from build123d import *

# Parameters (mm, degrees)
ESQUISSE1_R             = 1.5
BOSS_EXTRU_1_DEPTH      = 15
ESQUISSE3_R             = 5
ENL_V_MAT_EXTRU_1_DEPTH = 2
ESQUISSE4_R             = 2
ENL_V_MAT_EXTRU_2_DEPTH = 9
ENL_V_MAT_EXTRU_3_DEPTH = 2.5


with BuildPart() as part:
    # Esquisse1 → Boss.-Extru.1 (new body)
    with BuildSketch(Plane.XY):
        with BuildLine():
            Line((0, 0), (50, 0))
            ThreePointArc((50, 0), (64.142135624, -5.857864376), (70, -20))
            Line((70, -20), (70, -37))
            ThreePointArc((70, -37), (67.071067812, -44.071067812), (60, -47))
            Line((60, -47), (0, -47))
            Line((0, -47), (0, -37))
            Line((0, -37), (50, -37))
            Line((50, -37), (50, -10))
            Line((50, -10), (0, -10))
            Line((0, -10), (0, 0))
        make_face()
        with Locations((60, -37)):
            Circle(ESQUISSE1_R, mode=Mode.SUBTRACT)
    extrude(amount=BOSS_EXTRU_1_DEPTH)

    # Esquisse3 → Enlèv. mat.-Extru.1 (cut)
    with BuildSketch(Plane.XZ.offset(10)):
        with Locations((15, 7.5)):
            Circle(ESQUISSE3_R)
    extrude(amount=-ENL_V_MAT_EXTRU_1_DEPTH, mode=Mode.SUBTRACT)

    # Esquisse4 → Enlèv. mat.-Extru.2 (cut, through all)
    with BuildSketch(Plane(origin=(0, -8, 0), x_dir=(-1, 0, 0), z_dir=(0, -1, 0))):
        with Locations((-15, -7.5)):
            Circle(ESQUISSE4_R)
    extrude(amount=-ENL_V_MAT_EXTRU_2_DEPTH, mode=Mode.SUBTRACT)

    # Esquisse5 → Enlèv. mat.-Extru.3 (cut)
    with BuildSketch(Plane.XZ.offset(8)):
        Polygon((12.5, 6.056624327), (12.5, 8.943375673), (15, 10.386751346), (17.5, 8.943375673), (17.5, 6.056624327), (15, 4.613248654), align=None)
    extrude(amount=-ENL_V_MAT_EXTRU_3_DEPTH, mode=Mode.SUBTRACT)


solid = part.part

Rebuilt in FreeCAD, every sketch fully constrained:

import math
import FreeCAD as App
import Part
import Sketcher
Q = App.Units.Quantity


def add_polygon(sketch, points):
    """Adds a closed chain of lines whose ends are joined by coincident constraints."""
    first, n = sketch.GeometryCount, len(points)
    for a, b in zip(points, points[1:] + points[:1]):
        sketch.addGeometry(Part.LineSegment(App.Vector(*a, 0), App.Vector(*b, 0)), False)
    for i in range(n):
        sketch.addConstraint(Sketcher.Constraint("Coincident", first + i, 2, first + (i + 1) % n, 1))

doc = App.newDocument("Part")
params = doc.addObject("Spreadsheet::Sheet", "Params")
for row, (alias, value) in enumerate([
    ("sketch1_diameter", "3 mm"),
    ("sketch1_radius", "10 mm"),
    ("sketch1_radius2", "20 mm"),
    ("sketch1_width", "50 mm"),
    ("sketch1_height", "27 mm"),
    ("pad1_length", "15 mm"),
    ("sketch2_diameter", "10 mm"),
    ("pocket1_length", "2 mm"),
    ("sketch3_diameter", "4 mm"),
    ("pocket3_length", "2.5 mm"),
], start=1):
    params.set(f"A{row}", alias)
    params.set(f"B{row}", "=" + value)
    params.setAlias(f"B{row}", alias)

body = doc.addObject("PartDesign::Body", "Body")

# Sketch on XY plane
sketch1 = body.newObject("Sketcher::SketchObject", "Sketch")
sketch1.AttachmentSupport = (doc.getObject("XY_Plane"), [""])
sketch1.MapMode = "FlatFace"
sketch1.addGeometry(Part.LineSegment(App.Vector(50, 0, 0), App.Vector(0, 0, 0)), False)
sketch1.addGeometry(Part.LineSegment(App.Vector(0, 0, 0), App.Vector(0, -10, 0)), False)
sketch1.addGeometry(Part.LineSegment(App.Vector(0, -10, 0), App.Vector(50, -10, 0)), False)
sketch1.addGeometry(Part.LineSegment(App.Vector(50, -10, 0), App.Vector(50, -37, 0)), False)
sketch1.addGeometry(Part.LineSegment(App.Vector(50, -37, 0), App.Vector(0, -37, 0)), False)
sketch1.addGeometry(Part.LineSegment(App.Vector(0, -37, 0), App.Vector(0, -47, 0)), False)
sketch1.addGeometry(Part.LineSegment(App.Vector(0, -47, 0), App.Vector(60, -47, 0)), False)
sketch1.addGeometry(Part.ArcOfCircle(Part.Circle(App.Vector(60, -37, 0), App.Vector(0, 0, 1), 10), math.radians(-90), math.radians(0)), False)
sketch1.addGeometry(Part.LineSegment(App.Vector(70, -37, 0), App.Vector(70, -20, 0)), False)
sketch1.addGeometry(Part.ArcOfCircle(Part.Circle(App.Vector(50, -20, 0), App.Vector(0, 0, 1), 20), math.radians(0), math.radians(90)), False)
sketch1.addGeometry(Part.Circle(App.Vector(60, -37, 0), App.Vector(0, 0, 1), 1.5), False)
sketch1.addConstraint(Sketcher.Constraint("Coincident", 0, 2, 1, 1))
sketch1.addConstraint(Sketcher.Constraint("Coincident", 1, 2, 2, 1))
sketch1.addConstraint(Sketcher.Constraint("Coincident", 2, 2, 3, 1))
sketch1.addConstraint(Sketcher.Constraint("Coincident", 3, 2, 4, 1))
sketch1.addConstraint(Sketcher.Constraint("Coincident", 4, 2, 5, 1))
sketch1.addConstraint(Sketcher.Constraint("Coincident", 5, 2, 6, 1))
sketch1.addConstraint(Sketcher.Constraint("Tangent", 6, 2, 7, 1))
sketch1.addConstraint(Sketcher.Constraint("Tangent", 7, 2, 8, 1))
sketch1.addConstraint(Sketcher.Constraint("Tangent", 8, 2, 9, 1))
sketch1.addConstraint(Sketcher.Constraint("Tangent", 9, 2, 0, 1))
sketch1.addConstraint(Sketcher.Constraint("Horizontal", 0))
sketch1.addConstraint(Sketcher.Constraint("Vertical", 1))
sketch1.addConstraint(Sketcher.Constraint("Horizontal", 2))
sketch1.addConstraint(Sketcher.Constraint("Vertical", 3))
sketch1.addConstraint(Sketcher.Constraint("Horizontal", 4))
sketch1.addConstraint(Sketcher.Constraint("Vertical", 5))
sketch1.addConstraint(Sketcher.Constraint("Horizontal", 6))
sketch1.addConstraint(Sketcher.Constraint("Vertical", 8))
sketch1.addConstraint(Sketcher.Constraint("Coincident", 0, 2, -1, 1))
sketch1.addConstraint(Sketcher.Constraint("Coincident", 10, 3, 7, 3))
sketch1.addConstraint(Sketcher.Constraint("PointOnObject", 4, 2, -2))
sketch1.addConstraint(Sketcher.Constraint("Horizontal", 10, 3, 3, 2))
sketch1.addConstraint(Sketcher.Constraint("Vertical", 9, 3, 2, 2))
sketch1.addConstraint(Sketcher.Constraint("Equal", 1, 5))
sketch1.addConstraint(Sketcher.Constraint("Diameter", 10, 3.0))
sketch1.addConstraint(Sketcher.Constraint("Radius", 7, 10.0))
sketch1.addConstraint(Sketcher.Constraint("Radius", 9, 20.0))
sketch1.addConstraint(Sketcher.Constraint("DistanceX", 0, 2, 0, 1, 50.0))
sketch1.addConstraint(Sketcher.Constraint("DistanceY", 3, 2, 3, 1, 27.0))
sketch1.setExpression("Constraints[24]", "Params.sketch1_diameter")
sketch1.setExpression("Constraints[25]", "Params.sketch1_radius")
sketch1.setExpression("Constraints[26]", "Params.sketch1_radius2")
sketch1.setExpression("Constraints[27]", "Params.sketch1_width")
sketch1.setExpression("Constraints[28]", "Params.sketch1_height")
pad1 = body.newObject("PartDesign::Pad", "Pad")
pad1.Profile = sketch1
pad1.setExpression("Length", "Params.pad1_length")

# Sketch on XZ plane
sketch2 = body.newObject("Sketcher::SketchObject", "Sketch001")
sketch2.AttachmentSupport = (doc.getObject("XZ_Plane"), [""])
sketch2.MapMode = "FlatFace"
sketch2.AttachmentOffset = App.Placement(App.Vector(0, 0, 10), App.Rotation())
sketch2.addGeometry(Part.Circle(App.Vector(15, 8, 0), App.Vector(0, 0, 1), 5), False)
sketch2.addConstraint(Sketcher.Constraint("Diameter", 0, 10.0))
sketch2.addConstraint(Sketcher.Constraint("DistanceX", -1, 1, 0, 3, 15.0))
sketch2.addConstraint(Sketcher.Constraint("DistanceY", -1, 1, 0, 3, 7.5))
sketch2.setExpression("Constraints[0]", "Params.sketch2_diameter")
pocket1 = body.newObject("PartDesign::Pocket", "Pocket")
pocket1.Profile = sketch2
pocket1.setExpression("Length", "Params.pocket1_length")

# Sketch on XZ plane
sketch3 = body.newObject("Sketcher::SketchObject", "Sketch002")
sketch3.AttachmentSupport = (doc.getObject("XZ_Plane"), [""])
sketch3.MapMode = "FlatFace"
sketch3.AttachmentOffset = App.Placement(App.Vector(0, 0, 8), App.Rotation())
sketch3.addGeometry(Part.Circle(App.Vector(15, 7.5, 0), App.Vector(0, 0, 1), 2), False)
sketch3.addConstraint(Sketcher.Constraint("Diameter", 0, 4.0))
sketch3.addConstraint(Sketcher.Constraint("DistanceX", -1, 1, 0, 3, 15.0))
sketch3.addConstraint(Sketcher.Constraint("DistanceY", -1, 1, 0, 3, 7.5))
sketch3.setExpression("Constraints[0]", "Params.sketch3_diameter")
pocket2 = body.newObject("PartDesign::Pocket", "Pocket001")
pocket2.Profile = sketch3
pocket2.Type = "ThroughAll"

# Sketch on XZ plane
sketch4 = body.newObject("Sketcher::SketchObject", "Sketch003")
sketch4.AttachmentSupport = (doc.getObject("XZ_Plane"), [""])
sketch4.MapMode = "FlatFace"
sketch4.AttachmentOffset = App.Placement(App.Vector(0, 0, 8), App.Rotation())
add_polygon(sketch4, [(12.5, 8.9), (12.5, 6.1), (15, 4.6), (17.5, 6.1), (17.5, 8.9), (15, 10.4)])  # lines 0-5
sketch4.addConstraint(Sketcher.Constraint("Vertical", 0))
sketch4.addConstraint(Sketcher.Constraint("Vertical", 3))
sketch4.addConstraint(Sketcher.Constraint("Parallel", 1, 4))
sketch4.addConstraint(Sketcher.Constraint("Parallel", 2, 5))
sketch4.addConstraint(Sketcher.Constraint("Horizontal", 0, 2, 2, 2))
sketch4.addConstraint(Sketcher.Constraint("Horizontal", 3, 2, 5, 2))
sketch4.addConstraint(Sketcher.Constraint("Vertical", 1, 2, 4, 2))
sketch4.addConstraint(Sketcher.Constraint("Angle", 1, Q("-30 deg")))
sketch4.addConstraint(Sketcher.Constraint("DistanceX", -1, 1, 1, 2, 15.0))
sketch4.addConstraint(Sketcher.Constraint("DistanceX", 0, 2, 2, 2, 5.0))
sketch4.addConstraint(Sketcher.Constraint("DistanceY", 0, 2, 0, 1, 2.886751))
sketch4.addConstraint(Sketcher.Constraint("DistanceY", -1, 1, 1, 2, 4.613249))
pocket3 = body.newObject("PartDesign::Pocket", "Pocket002")
pocket3.Profile = sketch4
pocket3.setExpression("Length", "Params.pocket3_length")

doc.recompute()
